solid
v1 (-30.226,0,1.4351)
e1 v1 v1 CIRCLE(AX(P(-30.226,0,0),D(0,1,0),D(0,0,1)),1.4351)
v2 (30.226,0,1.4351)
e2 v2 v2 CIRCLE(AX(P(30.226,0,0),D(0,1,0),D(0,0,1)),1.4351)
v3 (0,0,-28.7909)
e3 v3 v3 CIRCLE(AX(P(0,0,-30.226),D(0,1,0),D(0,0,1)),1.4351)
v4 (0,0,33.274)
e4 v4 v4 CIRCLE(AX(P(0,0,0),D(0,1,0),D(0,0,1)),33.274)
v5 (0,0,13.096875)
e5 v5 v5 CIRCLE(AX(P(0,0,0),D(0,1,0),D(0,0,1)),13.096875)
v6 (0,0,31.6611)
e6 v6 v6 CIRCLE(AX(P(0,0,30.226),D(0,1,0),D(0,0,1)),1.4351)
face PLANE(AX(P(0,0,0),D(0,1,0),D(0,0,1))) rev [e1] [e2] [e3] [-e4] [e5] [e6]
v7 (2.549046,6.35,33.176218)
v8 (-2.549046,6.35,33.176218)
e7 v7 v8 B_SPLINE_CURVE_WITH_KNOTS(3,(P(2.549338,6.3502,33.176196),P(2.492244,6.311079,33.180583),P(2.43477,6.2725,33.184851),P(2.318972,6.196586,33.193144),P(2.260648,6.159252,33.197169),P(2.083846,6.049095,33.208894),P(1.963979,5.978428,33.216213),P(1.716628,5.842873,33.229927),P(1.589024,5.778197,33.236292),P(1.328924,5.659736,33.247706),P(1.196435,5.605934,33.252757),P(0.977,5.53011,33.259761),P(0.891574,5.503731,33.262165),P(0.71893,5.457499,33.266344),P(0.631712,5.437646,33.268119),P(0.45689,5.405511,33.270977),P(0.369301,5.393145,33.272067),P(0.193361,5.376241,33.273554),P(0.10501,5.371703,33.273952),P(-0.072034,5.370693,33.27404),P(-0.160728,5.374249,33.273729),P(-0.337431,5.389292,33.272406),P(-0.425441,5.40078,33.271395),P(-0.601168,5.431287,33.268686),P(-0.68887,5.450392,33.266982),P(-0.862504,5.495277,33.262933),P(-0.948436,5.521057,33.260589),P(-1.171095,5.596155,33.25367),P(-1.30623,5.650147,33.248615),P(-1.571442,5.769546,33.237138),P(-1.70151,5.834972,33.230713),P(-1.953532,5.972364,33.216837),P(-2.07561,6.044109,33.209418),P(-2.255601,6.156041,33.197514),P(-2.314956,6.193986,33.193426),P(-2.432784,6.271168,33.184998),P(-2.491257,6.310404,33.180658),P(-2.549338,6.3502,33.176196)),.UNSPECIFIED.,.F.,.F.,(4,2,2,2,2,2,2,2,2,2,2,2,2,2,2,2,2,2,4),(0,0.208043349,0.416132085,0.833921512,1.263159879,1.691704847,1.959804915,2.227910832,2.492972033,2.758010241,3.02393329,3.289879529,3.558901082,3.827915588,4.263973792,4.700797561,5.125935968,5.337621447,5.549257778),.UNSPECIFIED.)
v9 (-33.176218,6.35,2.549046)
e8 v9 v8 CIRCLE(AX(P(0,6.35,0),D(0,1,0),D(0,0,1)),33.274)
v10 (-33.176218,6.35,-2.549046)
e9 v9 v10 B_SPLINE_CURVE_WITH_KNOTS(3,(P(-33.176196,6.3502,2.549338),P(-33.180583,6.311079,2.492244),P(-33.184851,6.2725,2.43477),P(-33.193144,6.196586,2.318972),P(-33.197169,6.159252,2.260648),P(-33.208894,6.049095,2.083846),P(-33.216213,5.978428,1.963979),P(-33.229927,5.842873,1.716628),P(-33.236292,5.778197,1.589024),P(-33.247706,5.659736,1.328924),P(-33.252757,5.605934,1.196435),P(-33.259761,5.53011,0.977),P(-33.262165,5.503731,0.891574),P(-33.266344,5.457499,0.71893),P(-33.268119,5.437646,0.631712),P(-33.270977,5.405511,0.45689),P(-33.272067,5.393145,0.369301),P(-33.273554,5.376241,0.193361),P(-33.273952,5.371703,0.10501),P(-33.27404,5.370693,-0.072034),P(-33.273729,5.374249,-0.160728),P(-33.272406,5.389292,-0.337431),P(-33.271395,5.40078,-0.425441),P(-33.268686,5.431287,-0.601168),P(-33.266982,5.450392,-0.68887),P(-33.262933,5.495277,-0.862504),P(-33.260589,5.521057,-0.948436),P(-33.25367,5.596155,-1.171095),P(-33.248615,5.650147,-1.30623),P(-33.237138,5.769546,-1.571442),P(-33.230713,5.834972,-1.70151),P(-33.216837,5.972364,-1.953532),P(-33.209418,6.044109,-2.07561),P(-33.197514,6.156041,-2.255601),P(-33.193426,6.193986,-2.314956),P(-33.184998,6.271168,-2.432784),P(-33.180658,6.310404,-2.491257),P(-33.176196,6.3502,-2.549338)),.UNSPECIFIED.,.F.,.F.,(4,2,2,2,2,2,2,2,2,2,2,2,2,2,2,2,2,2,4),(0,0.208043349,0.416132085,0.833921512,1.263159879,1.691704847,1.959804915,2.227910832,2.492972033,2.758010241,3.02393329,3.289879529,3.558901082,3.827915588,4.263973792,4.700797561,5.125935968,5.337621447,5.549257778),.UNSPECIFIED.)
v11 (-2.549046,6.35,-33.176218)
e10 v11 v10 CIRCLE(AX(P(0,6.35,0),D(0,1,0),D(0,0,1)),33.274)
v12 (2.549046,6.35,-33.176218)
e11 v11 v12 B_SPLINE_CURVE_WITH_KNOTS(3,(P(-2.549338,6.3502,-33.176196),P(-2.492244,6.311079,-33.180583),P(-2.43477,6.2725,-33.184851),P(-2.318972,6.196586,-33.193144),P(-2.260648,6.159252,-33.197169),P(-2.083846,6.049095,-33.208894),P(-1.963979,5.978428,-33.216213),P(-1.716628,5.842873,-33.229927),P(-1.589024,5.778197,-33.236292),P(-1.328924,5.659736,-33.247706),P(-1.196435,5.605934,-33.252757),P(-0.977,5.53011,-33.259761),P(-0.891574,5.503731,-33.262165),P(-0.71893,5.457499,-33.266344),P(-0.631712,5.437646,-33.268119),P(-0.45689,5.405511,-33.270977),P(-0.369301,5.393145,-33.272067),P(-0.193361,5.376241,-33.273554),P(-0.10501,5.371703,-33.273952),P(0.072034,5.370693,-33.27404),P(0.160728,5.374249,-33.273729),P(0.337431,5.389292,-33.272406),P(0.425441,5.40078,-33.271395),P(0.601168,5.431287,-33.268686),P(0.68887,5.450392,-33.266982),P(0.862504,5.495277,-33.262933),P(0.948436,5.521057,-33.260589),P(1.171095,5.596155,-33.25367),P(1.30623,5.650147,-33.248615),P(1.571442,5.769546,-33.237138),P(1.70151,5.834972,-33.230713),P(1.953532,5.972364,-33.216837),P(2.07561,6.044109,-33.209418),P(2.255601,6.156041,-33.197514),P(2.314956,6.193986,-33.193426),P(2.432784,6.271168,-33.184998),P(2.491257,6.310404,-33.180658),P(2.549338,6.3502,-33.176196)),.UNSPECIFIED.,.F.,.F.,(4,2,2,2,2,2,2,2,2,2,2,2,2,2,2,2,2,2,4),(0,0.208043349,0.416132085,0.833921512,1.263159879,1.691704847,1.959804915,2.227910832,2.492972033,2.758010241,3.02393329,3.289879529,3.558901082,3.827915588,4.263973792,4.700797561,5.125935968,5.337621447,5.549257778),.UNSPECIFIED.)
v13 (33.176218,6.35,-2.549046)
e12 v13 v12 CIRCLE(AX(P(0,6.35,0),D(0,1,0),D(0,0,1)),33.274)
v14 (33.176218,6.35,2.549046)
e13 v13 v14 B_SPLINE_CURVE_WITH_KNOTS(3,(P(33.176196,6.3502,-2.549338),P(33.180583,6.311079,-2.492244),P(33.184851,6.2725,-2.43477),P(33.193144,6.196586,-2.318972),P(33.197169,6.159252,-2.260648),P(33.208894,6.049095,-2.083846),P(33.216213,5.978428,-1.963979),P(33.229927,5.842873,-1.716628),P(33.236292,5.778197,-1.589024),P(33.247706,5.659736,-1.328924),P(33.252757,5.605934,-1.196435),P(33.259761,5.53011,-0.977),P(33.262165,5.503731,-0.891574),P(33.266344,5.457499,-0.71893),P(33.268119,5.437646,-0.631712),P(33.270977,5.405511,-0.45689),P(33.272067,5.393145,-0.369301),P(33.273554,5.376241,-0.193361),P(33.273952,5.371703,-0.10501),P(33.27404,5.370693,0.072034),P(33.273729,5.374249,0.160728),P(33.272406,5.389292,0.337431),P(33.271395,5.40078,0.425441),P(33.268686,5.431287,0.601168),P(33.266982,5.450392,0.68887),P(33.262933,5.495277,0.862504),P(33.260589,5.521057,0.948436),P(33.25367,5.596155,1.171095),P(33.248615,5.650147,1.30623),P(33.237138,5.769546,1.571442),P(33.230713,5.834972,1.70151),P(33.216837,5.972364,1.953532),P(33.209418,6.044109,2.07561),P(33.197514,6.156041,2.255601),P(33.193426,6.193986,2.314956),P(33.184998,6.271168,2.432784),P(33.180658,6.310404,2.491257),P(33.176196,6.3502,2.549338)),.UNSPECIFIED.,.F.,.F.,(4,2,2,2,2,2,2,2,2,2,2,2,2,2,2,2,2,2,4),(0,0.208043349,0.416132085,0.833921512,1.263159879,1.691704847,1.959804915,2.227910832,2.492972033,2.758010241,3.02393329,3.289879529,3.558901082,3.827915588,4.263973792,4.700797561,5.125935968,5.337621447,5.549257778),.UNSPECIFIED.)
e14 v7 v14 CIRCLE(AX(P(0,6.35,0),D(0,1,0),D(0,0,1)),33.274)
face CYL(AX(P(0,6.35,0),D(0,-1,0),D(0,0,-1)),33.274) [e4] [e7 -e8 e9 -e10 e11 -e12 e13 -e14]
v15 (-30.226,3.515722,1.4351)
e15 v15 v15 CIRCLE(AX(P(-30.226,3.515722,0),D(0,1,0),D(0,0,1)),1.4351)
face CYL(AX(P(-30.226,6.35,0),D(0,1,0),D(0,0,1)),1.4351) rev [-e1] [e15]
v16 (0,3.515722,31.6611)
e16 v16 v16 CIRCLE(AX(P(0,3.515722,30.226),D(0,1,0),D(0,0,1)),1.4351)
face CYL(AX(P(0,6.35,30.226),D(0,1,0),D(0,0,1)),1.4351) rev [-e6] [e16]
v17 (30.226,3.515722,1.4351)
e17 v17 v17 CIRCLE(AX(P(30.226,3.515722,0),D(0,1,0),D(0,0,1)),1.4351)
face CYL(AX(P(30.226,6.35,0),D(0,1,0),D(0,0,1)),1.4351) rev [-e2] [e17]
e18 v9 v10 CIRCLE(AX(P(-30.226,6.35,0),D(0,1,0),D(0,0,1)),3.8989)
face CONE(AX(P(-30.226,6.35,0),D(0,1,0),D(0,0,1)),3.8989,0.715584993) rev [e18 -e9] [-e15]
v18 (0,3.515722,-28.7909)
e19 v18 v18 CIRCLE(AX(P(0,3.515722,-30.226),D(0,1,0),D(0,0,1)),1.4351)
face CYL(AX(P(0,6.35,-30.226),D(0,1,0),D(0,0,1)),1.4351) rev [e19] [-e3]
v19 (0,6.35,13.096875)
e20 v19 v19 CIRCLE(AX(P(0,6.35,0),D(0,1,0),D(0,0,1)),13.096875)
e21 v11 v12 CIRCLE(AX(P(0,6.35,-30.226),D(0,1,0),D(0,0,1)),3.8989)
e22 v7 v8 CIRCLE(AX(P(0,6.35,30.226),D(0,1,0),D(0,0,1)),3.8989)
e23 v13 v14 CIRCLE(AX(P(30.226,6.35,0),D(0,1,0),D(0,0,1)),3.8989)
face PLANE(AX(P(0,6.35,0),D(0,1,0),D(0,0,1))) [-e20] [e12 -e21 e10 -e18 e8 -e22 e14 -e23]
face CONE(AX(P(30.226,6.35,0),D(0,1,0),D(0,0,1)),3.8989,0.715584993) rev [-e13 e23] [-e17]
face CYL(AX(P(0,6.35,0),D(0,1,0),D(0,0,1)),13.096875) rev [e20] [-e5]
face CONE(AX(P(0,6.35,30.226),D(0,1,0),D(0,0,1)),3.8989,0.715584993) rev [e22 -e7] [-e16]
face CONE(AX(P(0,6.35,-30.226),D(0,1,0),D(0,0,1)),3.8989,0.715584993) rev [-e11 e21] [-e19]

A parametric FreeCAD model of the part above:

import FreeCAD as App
import Part
import Sketcher
from FreeCAD import Vector
Q = App.Units.Quantity

doc = App.newDocument("Part")
params = doc.addObject("Spreadsheet::Sheet", "Params")
for row, (alias, value) in enumerate([
    ("sketch1_diameter", "2.62 in"),
    ("pad1_length", "0.25 in"),
    ("sketch2_diameter", "0.113 in"),
    ("hole_diameter", "0.113 in"),
    ("hole_depth", "0.401 in"),
    ("hole_csink_diameter", "0.307 in"),
    ("sketch3_diameter", "1.03125 in"),
    ("hole2_diameter", "1.03125 in"),
    ("hole2_depth", "0.25 in"),
], start=1):
    params.set(f"A{row}", alias)
    params.set(f"B{row}", "=" + value)
    params.setAlias(f"B{row}", alias)

body = doc.addObject("PartDesign::Body", "Body")

# Sketch on XZ plane
sketch1 = doc.addObject("Sketcher::SketchObject", "Sketch")
body.addObject(sketch1)
sketch1.AttachmentSupport = (doc.XZ_Plane, [""])
sketch1.MapMode = "FlatFace"
sketch1.addGeometry(Part.Circle(Vector(0, 0, 0), Vector(0, 0, 1), 33.274), False)
sketch1.addConstraint([
    Sketcher.Constraint("Coincident", 0, 3, -1, 1),
    Sketcher.Constraint("Diameter", 0, Q("2.62 in")),
])
sketch1.setExpression("Constraints[1]", "Params.sketch1_diameter")
pad1 = doc.addObject("PartDesign::Pad", "Pad")
body.addObject(pad1)
pad1.Profile = sketch1
pad1.setExpression("Length", "Params.pad1_length")
pad1.Reversed = True

# Sketch on XZ plane
sketch2 = doc.addObject("Sketcher::SketchObject", "Sketch001")
body.addObject(sketch2)
sketch2.AttachmentSupport = (doc.XZ_Plane, [""])
sketch2.MapMode = "FlatFace"
sketch2.AttachmentOffset = App.Placement(Vector(0, 0, -0.25 * 25.4), App.Rotation())
sketch2.addGeometry([
    Part.Circle(Vector(0, -30.226, 0), Vector(0, 0, 1), 1.4351),
    Part.Circle(Vector(-30.226, 0, 0), Vector(0, 0, 1), 1.4351),
    Part.Circle(Vector(0, 30.226, 0), Vector(0, 0, 1), 1.4351),
    Part.Circle(Vector(30.226, 0, 0), Vector(0, 0, 1), 1.4351),
], False)
sketch2.addConstraint([
    Sketcher.Constraint("Equal", 0, 1),
    Sketcher.Constraint("Equal", 1, 2),
    Sketcher.Constraint("Equal", 2, 3),
    Sketcher.Constraint("Symmetric", 0, 3, 2, 3, -1, 1),
    Sketcher.Constraint("Symmetric", 1, 3, 3, 3, -1, 1),
    Sketcher.Constraint("PointOnObject", 0, 3, -2),
    Sketcher.Constraint("PointOnObject", 1, 3, -1),
    Sketcher.Constraint("Diameter", 0, Q("0.113 in")),
    Sketcher.Constraint("DistanceY", 0, 3, -1, 1, Q("1.19 in")),
    Sketcher.Constraint("DistanceX", 1, 3, -1, 1, Q("1.19 in")),
])
sketch2.setExpression("Constraints[7]", "Params.sketch2_diameter")
doc.recompute()
hole = doc.addObject("PartDesign::Hole", "Hole")
body.addObject(hole)
hole.Profile = sketch2
hole.ThreadType = "None"
hole.setExpression("Diameter", "Params.hole_diameter")
hole.DepthType = "Dimension"
hole.setExpression("Depth", "Params.hole_depth")
hole.DrillPoint = "Angled"
hole.DrillPointAngle = 118
hole.HoleCutType = "Countersink"
hole.setExpression("HoleCutDiameter", "Params.hole_csink_diameter")
hole.HoleCutCountersinkAngle = 82
hole.Reversed = True

# Sketch on XZ plane
sketch3 = doc.addObject("Sketcher::SketchObject", "Sketch002")
body.addObject(sketch3)
sketch3.AttachmentSupport = (doc.XZ_Plane, [""])
sketch3.MapMode = "FlatFace"
sketch3.AttachmentOffset = App.Placement(Vector(0, 0, -0.25 * 25.4), App.Rotation())
sketch3.addGeometry(Part.Circle(Vector(0, 0, 0), Vector(0, 0, 1), 13.096875), False)
sketch3.addConstraint([
    Sketcher.Constraint("Coincident", 0, 3, -1, 1),
    Sketcher.Constraint("Diameter", 0, Q("1.03125 in")),
])
sketch3.setExpression("Constraints[1]", "Params.sketch3_diameter")
doc.recompute()
hole2 = doc.addObject("PartDesign::Hole", "Hole001")
body.addObject(hole2)
hole2.Profile = sketch3
hole2.ThreadType = "None"
hole2.setExpression("Diameter", "Params.hole2_diameter")
hole2.DepthType = "Dimension"
hole2.setExpression("Depth", "Params.hole2_depth")
hole2.DrillPoint = "Angled"
hole2.DrillPointAngle = 118
hole2.Reversed = True

doc.recompute()
